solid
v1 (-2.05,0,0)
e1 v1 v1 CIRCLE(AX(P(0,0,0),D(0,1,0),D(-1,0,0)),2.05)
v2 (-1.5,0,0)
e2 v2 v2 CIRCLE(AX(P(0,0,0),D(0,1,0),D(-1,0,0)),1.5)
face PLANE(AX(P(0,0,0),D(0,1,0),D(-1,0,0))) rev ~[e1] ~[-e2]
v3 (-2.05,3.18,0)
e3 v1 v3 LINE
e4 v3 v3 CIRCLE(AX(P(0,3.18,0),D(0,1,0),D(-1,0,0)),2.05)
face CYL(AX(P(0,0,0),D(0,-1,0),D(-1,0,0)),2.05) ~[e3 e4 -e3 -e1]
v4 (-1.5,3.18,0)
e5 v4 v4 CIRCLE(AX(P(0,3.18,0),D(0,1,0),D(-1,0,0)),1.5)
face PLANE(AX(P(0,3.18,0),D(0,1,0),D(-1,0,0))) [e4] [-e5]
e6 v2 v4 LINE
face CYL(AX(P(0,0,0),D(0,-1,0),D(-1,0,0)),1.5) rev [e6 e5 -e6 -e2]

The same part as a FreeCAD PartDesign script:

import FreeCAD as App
import Part
import Sketcher

V = App.Vector

doc = App.newDocument("Part")
body = doc.addObject("PartDesign::Body", "Body")

# Sketch on XZ plane
sketch1 = body.newObject("Sketcher::SketchObject", "Sketch")
sketch1.AttachmentSupport = (doc.getObject("XZ_Plane"), [""])
sketch1.MapMode = "FlatFace"
sketch1.addGeometry([
    Part.Circle(V(0, 0, 0), V(0, 0, 1), 2.05),
    Part.Circle(V(0, 0, 0), V(0, 0, 1), 1.5),
], False)
sketch1.addConstraint([
    Sketcher.Constraint("Coincident", 0, 3, -1, 1),
    Sketcher.Constraint("Coincident", 1, 3, -1, 1),
    Sketcher.Constraint("Diameter", 1, 3.0),
    Sketcher.Constraint("Diameter", 0, 4.1),
])
pad1 = body.newObject("PartDesign::Pad", "Pad")
pad1.Profile = sketch1
pad1.Length = 3.18
pad1.Reversed = True

doc.recompute()
